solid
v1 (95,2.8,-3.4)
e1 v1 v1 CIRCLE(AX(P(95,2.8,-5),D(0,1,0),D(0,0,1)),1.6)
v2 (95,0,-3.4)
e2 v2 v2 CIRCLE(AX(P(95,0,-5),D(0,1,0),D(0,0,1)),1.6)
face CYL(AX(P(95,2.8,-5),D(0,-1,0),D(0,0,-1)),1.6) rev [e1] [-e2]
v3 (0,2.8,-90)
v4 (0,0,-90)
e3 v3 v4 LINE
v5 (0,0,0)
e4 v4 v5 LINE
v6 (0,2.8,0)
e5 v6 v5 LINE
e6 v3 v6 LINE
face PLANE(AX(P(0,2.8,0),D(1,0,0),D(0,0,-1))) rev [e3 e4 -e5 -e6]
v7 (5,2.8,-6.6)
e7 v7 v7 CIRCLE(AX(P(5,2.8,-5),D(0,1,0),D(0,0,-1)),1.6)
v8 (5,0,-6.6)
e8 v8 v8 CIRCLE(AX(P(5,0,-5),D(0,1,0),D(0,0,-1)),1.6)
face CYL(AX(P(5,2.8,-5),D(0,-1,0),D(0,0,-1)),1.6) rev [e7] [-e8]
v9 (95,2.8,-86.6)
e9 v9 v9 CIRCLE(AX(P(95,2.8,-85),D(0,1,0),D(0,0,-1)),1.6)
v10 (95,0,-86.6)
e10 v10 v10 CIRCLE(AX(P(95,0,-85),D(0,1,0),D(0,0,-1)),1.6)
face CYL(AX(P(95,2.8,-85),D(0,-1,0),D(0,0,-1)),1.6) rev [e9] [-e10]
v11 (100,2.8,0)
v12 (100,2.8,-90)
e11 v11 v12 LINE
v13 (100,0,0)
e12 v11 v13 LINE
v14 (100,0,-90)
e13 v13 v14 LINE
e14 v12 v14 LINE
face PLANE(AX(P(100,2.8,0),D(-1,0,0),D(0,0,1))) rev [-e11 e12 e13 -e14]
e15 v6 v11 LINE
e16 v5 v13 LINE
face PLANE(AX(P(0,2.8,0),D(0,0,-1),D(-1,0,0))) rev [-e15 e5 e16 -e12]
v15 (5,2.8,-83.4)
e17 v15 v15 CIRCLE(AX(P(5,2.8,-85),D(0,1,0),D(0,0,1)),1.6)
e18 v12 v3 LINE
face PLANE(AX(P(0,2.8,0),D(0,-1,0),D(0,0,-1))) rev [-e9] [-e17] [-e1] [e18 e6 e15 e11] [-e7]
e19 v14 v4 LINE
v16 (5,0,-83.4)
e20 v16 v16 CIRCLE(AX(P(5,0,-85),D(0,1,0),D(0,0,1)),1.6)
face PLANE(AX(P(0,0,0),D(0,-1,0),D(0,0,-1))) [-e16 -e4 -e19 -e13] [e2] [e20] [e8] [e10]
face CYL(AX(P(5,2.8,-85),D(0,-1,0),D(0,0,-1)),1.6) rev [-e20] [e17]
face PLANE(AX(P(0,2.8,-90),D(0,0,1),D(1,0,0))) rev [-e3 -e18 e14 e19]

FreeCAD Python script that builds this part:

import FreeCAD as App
import Part
import Sketcher


def add_polygon(sketch, points):
    """Adds a closed chain of lines whose ends are joined by coincident constraints."""
    first, n = sketch.GeometryCount, len(points)
    for a, b in zip(points, points[1:] + points[:1]):
        sketch.addGeometry(Part.LineSegment(App.Vector(*a, 0), App.Vector(*b, 0)), False)
    for i in range(n):
        sketch.addConstraint(Sketcher.Constraint("Coincident", first + i, 2, first + (i + 1) % n, 1))

doc = App.newDocument("Part")
body = doc.addObject("PartDesign::Body", "Body")

# Sketch on XZ plane
sketch1 = body.newObject("Sketcher::SketchObject", "Sketch")
sketch1.AttachmentSupport = (doc.getObject("XZ_Plane"), [""])
sketch1.MapMode = "FlatFace"
add_polygon(sketch1, [(0, -90), (0, 0), (100, 0), (100, -90)])  # lines 0-3
sketch1.addGeometry(Part.Circle(App.Vector(5, -5, 0), App.Vector(0, 0, 1), 1.6), False)  # 4
sketch1.addGeometry(Part.Circle(App.Vector(95, -5, 0), App.Vector(0, 0, 1), 1.6), False)  # 5
sketch1.addGeometry(Part.Circle(App.Vector(5, -85, 0), App.Vector(0, 0, 1), 1.6), False)  # 6
sketch1.addGeometry(Part.Circle(App.Vector(95, -85, 0), App.Vector(0, 0, 1), 1.6), False)  # 7
sketch1.addConstraint([
    Sketcher.Constraint("Vertical", 0),
    Sketcher.Constraint("Horizontal", 1),
    Sketcher.Constraint("Vertical", 2),
    Sketcher.Constraint("Horizontal", 3),
    Sketcher.Constraint("Coincident", 0, 2, -1, 1),
    Sketcher.Constraint("Equal", 4, 5),
    Sketcher.Constraint("Equal", 5, 6),
    Sketcher.Constraint("Equal", 6, 7),
    Sketcher.Constraint("Horizontal", 4, 3, 5, 3),
    Sketcher.Constraint("Horizontal", 6, 3, 7, 3),
    Sketcher.Constraint("Vertical", 4, 3, 6, 3),
    Sketcher.Constraint("Vertical", 5, 3, 7, 3),
    Sketcher.Constraint("Diameter", 4, 3.2),
    Sketcher.Constraint("DistanceX", 1, 1, 1, 2, 100.0),
    Sketcher.Constraint("DistanceY", 0, 1, 0, 2, 90.0),
    Sketcher.Constraint("DistanceX", -1, 1, 4, 3, 5.0),
    Sketcher.Constraint("DistanceY", 4, 3, -1, 1, 5.0),
    Sketcher.Constraint("DistanceX", -1, 1, 5, 3, 95.0),
    Sketcher.Constraint("DistanceY", 6, 3, -1, 1, 85.0),
])
pad1 = body.newObject("PartDesign::Pad", "Pad")
pad1.Profile = sketch1
pad1.Length = 2.8
pad1.Reversed = True

doc.recompute()
